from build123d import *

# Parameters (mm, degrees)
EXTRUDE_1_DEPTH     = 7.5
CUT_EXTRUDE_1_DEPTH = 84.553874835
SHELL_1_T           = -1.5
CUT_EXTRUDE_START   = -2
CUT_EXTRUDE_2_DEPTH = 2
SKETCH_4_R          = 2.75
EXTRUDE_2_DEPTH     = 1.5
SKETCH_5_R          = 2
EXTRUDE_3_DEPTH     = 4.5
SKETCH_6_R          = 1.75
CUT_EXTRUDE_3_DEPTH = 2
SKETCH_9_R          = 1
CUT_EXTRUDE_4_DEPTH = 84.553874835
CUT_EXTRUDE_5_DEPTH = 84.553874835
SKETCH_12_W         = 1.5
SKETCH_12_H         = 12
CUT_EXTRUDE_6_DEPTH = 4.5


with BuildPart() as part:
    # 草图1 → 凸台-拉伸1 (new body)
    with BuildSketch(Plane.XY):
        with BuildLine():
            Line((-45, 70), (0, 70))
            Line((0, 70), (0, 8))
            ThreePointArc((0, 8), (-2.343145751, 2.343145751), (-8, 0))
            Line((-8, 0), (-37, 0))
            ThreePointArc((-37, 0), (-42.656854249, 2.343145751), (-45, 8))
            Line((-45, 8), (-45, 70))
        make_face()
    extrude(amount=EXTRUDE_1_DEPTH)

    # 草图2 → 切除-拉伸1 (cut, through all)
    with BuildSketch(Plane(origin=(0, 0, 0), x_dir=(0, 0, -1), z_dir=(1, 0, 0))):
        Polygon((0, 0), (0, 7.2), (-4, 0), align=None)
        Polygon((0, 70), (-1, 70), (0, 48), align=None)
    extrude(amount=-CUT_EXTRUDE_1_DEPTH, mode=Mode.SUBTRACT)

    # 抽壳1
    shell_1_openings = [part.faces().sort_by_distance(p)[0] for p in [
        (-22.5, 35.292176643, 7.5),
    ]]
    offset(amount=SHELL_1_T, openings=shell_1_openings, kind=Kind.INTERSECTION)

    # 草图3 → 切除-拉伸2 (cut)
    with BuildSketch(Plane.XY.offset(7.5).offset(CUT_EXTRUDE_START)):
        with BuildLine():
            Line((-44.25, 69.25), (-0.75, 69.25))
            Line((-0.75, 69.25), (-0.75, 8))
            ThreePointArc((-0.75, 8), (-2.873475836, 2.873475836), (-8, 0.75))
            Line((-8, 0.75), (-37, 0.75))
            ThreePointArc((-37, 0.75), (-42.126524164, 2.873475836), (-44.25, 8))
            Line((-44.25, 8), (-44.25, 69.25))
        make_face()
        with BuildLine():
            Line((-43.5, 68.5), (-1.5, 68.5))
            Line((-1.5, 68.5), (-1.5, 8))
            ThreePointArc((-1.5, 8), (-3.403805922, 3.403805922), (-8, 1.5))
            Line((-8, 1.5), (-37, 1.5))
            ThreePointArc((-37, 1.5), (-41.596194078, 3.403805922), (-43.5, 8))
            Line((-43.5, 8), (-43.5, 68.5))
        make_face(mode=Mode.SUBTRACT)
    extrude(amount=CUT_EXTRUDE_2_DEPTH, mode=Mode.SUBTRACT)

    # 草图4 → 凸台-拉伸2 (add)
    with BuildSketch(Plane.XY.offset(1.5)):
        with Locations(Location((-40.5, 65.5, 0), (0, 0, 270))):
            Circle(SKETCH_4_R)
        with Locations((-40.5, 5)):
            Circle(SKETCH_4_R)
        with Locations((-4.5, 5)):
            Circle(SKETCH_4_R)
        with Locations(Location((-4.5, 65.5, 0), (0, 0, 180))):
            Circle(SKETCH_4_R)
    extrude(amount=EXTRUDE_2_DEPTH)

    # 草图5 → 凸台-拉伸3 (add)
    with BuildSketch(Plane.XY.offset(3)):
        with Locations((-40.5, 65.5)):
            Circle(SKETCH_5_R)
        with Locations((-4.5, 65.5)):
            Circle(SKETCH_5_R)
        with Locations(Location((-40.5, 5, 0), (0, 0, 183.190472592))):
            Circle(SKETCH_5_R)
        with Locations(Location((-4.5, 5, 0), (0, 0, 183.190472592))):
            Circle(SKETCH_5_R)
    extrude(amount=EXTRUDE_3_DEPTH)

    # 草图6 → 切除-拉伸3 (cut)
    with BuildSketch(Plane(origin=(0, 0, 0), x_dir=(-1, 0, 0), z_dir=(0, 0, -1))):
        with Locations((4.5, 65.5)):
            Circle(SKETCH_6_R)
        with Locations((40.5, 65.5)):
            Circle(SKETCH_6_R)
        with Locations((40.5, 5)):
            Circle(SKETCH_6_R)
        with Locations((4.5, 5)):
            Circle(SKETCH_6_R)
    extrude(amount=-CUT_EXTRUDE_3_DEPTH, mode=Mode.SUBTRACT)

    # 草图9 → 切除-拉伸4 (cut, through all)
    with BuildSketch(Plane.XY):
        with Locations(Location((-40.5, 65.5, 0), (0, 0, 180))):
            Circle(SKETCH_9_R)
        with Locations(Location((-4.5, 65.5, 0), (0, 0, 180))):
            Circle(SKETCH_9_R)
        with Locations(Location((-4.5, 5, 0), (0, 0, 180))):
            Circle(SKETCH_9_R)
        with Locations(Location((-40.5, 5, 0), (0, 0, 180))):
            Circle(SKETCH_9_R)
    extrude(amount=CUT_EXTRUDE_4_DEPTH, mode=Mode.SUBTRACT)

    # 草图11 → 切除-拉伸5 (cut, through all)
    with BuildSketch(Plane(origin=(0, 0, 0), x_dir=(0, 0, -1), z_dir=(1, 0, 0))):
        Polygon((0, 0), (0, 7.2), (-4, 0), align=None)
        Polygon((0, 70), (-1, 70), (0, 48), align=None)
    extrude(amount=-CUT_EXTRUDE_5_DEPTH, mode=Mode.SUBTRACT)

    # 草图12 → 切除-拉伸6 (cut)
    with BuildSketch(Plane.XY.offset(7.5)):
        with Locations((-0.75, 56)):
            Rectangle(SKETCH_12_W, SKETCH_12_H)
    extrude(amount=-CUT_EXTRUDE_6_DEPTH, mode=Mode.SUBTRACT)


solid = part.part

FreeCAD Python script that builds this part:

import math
import FreeCAD as App
import Part
import Sketcher
Q = App.Units.Quantity


def faces_at(feature, points):
    """Names of the faces that lie closest to the given points."""
    faces = feature.Shape.Faces
    near = lambda p: min(range(len(faces)), key=lambda i: faces[i].distToShape(Part.Vertex(*p))[0])
    return sorted({f"Face{near(p) + 1}" for p in points})

doc = App.newDocument("Part")
body = doc.addObject("PartDesign::Body", "Body")

# Sketch on XY plane
sketch1 = body.newObject("Sketcher::SketchObject", "Sketch")
sketch1.AttachmentSupport = (doc.getObject("XY_Plane"), [""])
sketch1.MapMode = "FlatFace"
sketch1.addGeometry([
    Part.LineSegment(App.Vector(0, 70, 0), App.Vector(-45, 70, 0)),  # 0
    Part.LineSegment(App.Vector(-45, 70, 0), App.Vector(-45, 8, 0)),  # 1
    Part.ArcOfCircle(Part.Circle(App.Vector(-37, 8, 0), App.Vector(0, 0, 1), 8), math.radians(-180), math.radians(-90)),  # 2
    Part.LineSegment(App.Vector(-37, 0, 0), App.Vector(-8, 0, 0)),  # 3
    Part.ArcOfCircle(Part.Circle(App.Vector(-8, 8, 0), App.Vector(0, 0, 1), 8), math.radians(-90), math.radians(0)),  # 4
    Part.LineSegment(App.Vector(0, 8, 0), App.Vector(0, 70, 0)),  # 5
], False)
sketch1.addConstraint([
    Sketcher.Constraint("Coincident", 0, 2, 1, 1),
    Sketcher.Constraint("Tangent", 1, 2, 2, 1),
    Sketcher.Constraint("Tangent", 2, 2, 3, 1),
    Sketcher.Constraint("Tangent", 3, 2, 4, 1),
    Sketcher.Constraint("Tangent", 4, 2, 5, 1),
    Sketcher.Constraint("Coincident", 5, 2, 0, 1),
    Sketcher.Constraint("Horizontal", 0),
    Sketcher.Constraint("Vertical", 1),
    Sketcher.Constraint("Horizontal", 3),
    Sketcher.Constraint("Vertical", 5),
    Sketcher.Constraint("Equal", 2, 4),
    Sketcher.Constraint("PointOnObject", 2, 2, -1),
    Sketcher.Constraint("PointOnObject", 4, 2, -2),
    Sketcher.Constraint("Radius", 2, Q("8 mm")),
    Sketcher.Constraint("DistanceX", 0, 2, 0, 1, Q("45 mm")),
    Sketcher.Constraint("DistanceY", 1, 2, 1, 1, Q("62 mm")),
])
pad1 = body.newObject("PartDesign::Pad", "Pad")
pad1.Profile = sketch1
pad1.Length = 7.5

# Sketch on YZ plane
sketch2 = body.newObject("Sketcher::SketchObject", "Sketch001")
sketch2.AttachmentSupport = (doc.getObject("YZ_Plane"), [""])
sketch2.MapMode = "FlatFace"
sketch2.addGeometry([
    Part.LineSegment(App.Vector(0, 0, 0), App.Vector(7.2, 0, 0)),  # 0
    Part.LineSegment(App.Vector(7.2, 0, 0), App.Vector(0, 4, 0)),  # 1
    Part.LineSegment(App.Vector(0, 4, 0), App.Vector(0, 0, 0)),  # 2
    Part.LineSegment(App.Vector(70, 0, 0), App.Vector(70, 1, 0)),  # 3
    Part.LineSegment(App.Vector(70, 1, 0), App.Vector(48, 0, 0)),  # 4
    Part.LineSegment(App.Vector(48, 0, 0), App.Vector(70, 0, 0)),  # 5
], False)
sketch2.addConstraint([
    Sketcher.Constraint("Coincident", 0, 2, 1, 1),
    Sketcher.Constraint("Coincident", 1, 2, 2, 1),
    Sketcher.Constraint("Coincident", 2, 2, 0, 1),
    Sketcher.Constraint("Coincident", 3, 2, 4, 1),
    Sketcher.Constraint("Coincident", 4, 2, 5, 1),
    Sketcher.Constraint("Coincident", 5, 2, 3, 1),
    Sketcher.Constraint("Horizontal", 0),
    Sketcher.Constraint("Vertical", 2),
    Sketcher.Constraint("Vertical", 3),
    Sketcher.Constraint("Horizontal", 5),
    Sketcher.Constraint("Coincident", 2, 2, -1, 1),
    Sketcher.Constraint("PointOnObject", 4, 2, -1),
    Sketcher.Constraint("DistanceX", 5, 1, 5, 2, Q("22 mm")),
    Sketcher.Constraint("DistanceY", 2, 2, 2, 1, Q("4 mm")),
    Sketcher.Constraint("DistanceY", 3, 1, 3, 2, Q("1 mm")),
    Sketcher.Constraint("DistanceX", 0, 1, 0, 2, Q("7.2 mm")),
    Sketcher.Constraint("DistanceX", -1, 1, 3, 2, Q("70 mm")),
])
pocket1 = body.newObject("PartDesign::Pocket", "Pocket")
pocket1.Profile = sketch2
pocket1.Type = "ThroughAll"
doc.recompute()

thickness = body.newObject("PartDesign::Thickness", "Thickness")
thickness.Base = (pocket1, faces_at(pocket1, [(-22.5, 35, 7.5)]))
thickness.Value = 1.5
thickness.Reversed = True
thickness.Join = "Intersection"

# Sketch on XY plane
sketch3 = body.newObject("Sketcher::SketchObject", "Sketch002")
sketch3.AttachmentSupport = (doc.getObject("XY_Plane"), [""])
sketch3.MapMode = "FlatFace"
sketch3.AttachmentOffset = App.Placement(App.Vector(0, 0, 5.5), App.Rotation())
sketch3.addGeometry([
    Part.LineSegment(App.Vector(-1, 69, 0), App.Vector(-44, 69, 0)),  # 0
    Part.LineSegment(App.Vector(-44, 69, 0), App.Vector(-44, 8, 0)),  # 1
    Part.ArcOfCircle(Part.Circle(App.Vector(-37, 8, 0), App.Vector(0, 0, 1), 7), math.radians(180), math.radians(270)),  # 2
    Part.LineSegment(App.Vector(-37, 1, 0), App.Vector(-8, 1, 0)),  # 3
    Part.ArcOfCircle(Part.Circle(App.Vector(-8, 8, 0), App.Vector(0, 0, 1), 7), math.radians(-90), math.radians(0)),  # 4
    Part.LineSegment(App.Vector(-1, 8, 0), App.Vector(-1, 69, 0)),  # 5
    Part.LineSegment(App.Vector(-44, 68, 0), App.Vector(-2, 68, 0)),  # 6
    Part.LineSegment(App.Vector(-2, 68, 0), App.Vector(-2, 8, 0)),  # 7
    Part.ArcOfCircle(Part.Circle(App.Vector(-8, 8, 0), App.Vector(0, 0, 1), 6), math.radians(-90), math.radians(0)),  # 8
    Part.LineSegment(App.Vector(-8, 2, 0), App.Vector(-37, 2, 0)),  # 9
    Part.ArcOfCircle(Part.Circle(App.Vector(-37, 8, 0), App.Vector(0, 0, 1), 6), math.radians(180), math.radians(270)),  # 10
    Part.LineSegment(App.Vector(-44, 8, 0), App.Vector(-44, 68, 0)),  # 11
], False)
sketch3.addConstraint([
    Sketcher.Constraint("Coincident", 0, 2, 1, 1),
    Sketcher.Constraint("Tangent", 1, 2, 2, 1),
    Sketcher.Constraint("Tangent", 2, 2, 3, 1),
    Sketcher.Constraint("Tangent", 3, 2, 4, 1),
    Sketcher.Constraint("Tangent", 4, 2, 5, 1),
    Sketcher.Constraint("Coincident", 5, 2, 0, 1),
    Sketcher.Constraint("Coincident", 6, 2, 7, 1),
    Sketcher.Constraint("Tangent", 7, 2, 8, 2),
    Sketcher.Constraint("Tangent", 8, 1, 9, 1),
    Sketcher.Constraint("Tangent", 9, 2, 10, 2),
    Sketcher.Constraint("Tangent", 10, 1, 11, 1),
    Sketcher.Constraint("Coincident", 11, 2, 6, 1),
    Sketcher.Constraint("Horizontal", 0),
    Sketcher.Constraint("Vertical", 1),
    Sketcher.Constraint("Horizontal", 3),
    Sketcher.Constraint("Vertical", 5),
    Sketcher.Constraint("Horizontal", 6),
    Sketcher.Constraint("Vertical", 7),
    Sketcher.Constraint("Horizontal", 9),
    Sketcher.Constraint("Vertical", 11),
    Sketcher.Constraint("Coincident", 8, 3, 4, 3),
    Sketcher.Constraint("Coincident", 10, 3, 2, 3),
    Sketcher.Constraint("Equal", 2, 4),
    Sketcher.Constraint("Radius", 8, Q("6.5 mm")),
    Sketcher.Constraint("DistanceX", 3, 1, 3, 2, Q("29 mm")),
    Sketcher.Constraint("Radius", 2, Q("7.25 mm")),
    Sketcher.Constraint("DistanceY", 7, 2, 7, 1, Q("60.5 mm")),
    Sketcher.Constraint("DistanceX", 2, 3, -1, 1, Q("37 mm")),
    Sketcher.Constraint("DistanceY", -1, 1, 2, 3, Q("8 mm")),
    Sketcher.Constraint("DistanceY", 1, 2, 1, 1, Q("61.25 mm")),
])
pocket2 = body.newObject("PartDesign::Pocket", "Pocket001")
pocket2.Profile = sketch3
pocket2.Length = 2
pocket2.Reversed = True

# Sketch on XY plane
sketch4 = body.newObject("Sketcher::SketchObject", "Sketch003")
sketch4.AttachmentSupport = (doc.getObject("XY_Plane"), [""])
sketch4.MapMode = "FlatFace"
sketch4.AttachmentOffset = App.Placement(App.Vector(0, 0, 1.5), App.Rotation())
sketch4.addGeometry([
    Part.Circle(App.Vector(-40.5, 65.5, 0), App.Vector(0, 0, 1), 2.8),
    Part.Circle(App.Vector(-40.5, 5, 0), App.Vector(0, 0, 1), 2.8),
    Part.Circle(App.Vector(-4.5, 5, 0), App.Vector(0, 0, 1), 2.8),
    Part.Circle(App.Vector(-4.5, 65.5, 0), App.Vector(0, 0, 1), 2.8),
], False)
sketch4.addConstraint([
    Sketcher.Constraint("Equal", 0, 1),
    Sketcher.Constraint("Equal", 1, 2),
    Sketcher.Constraint("Equal", 2, 3),
    Sketcher.Constraint("Horizontal", 1, 3, 2, 3),
    Sketcher.Constraint("Horizontal", 0, 3, 3, 3),
    Sketcher.Constraint("Vertical", 0, 3, 1, 3),
    Sketcher.Constraint("Vertical", 2, 3, 3, 3),
    Sketcher.Constraint("Diameter", 0, Q("5.5 mm")),
    Sketcher.Constraint("DistanceY", -1, 1, 1, 3, Q("5 mm")),
    Sketcher.Constraint("DistanceX", 1, 3, 2, 3, Q("36 mm")),
    Sketcher.Constraint("DistanceX", 0, 3, -1, 1, Q("40.5 mm")),
    Sketcher.Constraint("DistanceY", -1, 1, 0, 3, Q("65.5 mm")),
])
pad2 = body.newObject("PartDesign::Pad", "Pad001")
pad2.Profile = sketch4
pad2.Length = 1.5

# Sketch on XY plane
sketch5 = body.newObject("Sketcher::SketchObject", "Sketch004")
sketch5.AttachmentSupport = (doc.getObject("XY_Plane"), [""])
sketch5.MapMode = "FlatFace"
sketch5.AttachmentOffset = App.Placement(App.Vector(0, 0, 3), App.Rotation())
sketch5.addGeometry([
    Part.Circle(App.Vector(-40.5, 65.5, 0), App.Vector(0, 0, 1), 2),
    Part.Circle(App.Vector(-4.5, 65.5, 0), App.Vector(0, 0, 1), 2),
    Part.Circle(App.Vector(-40.5, 5, 0), App.Vector(0, 0, 1), 2),
    Part.Circle(App.Vector(-4.5, 5, 0), App.Vector(0, 0, 1), 2),
], False)
sketch5.addConstraint([
    Sketcher.Constraint("Equal", 0, 1),
    Sketcher.Constraint("Equal", 1, 2),
    Sketcher.Constraint("Equal", 2, 3),
    Sketcher.Constraint("Horizontal", 0, 3, 1, 3),
    Sketcher.Constraint("Horizontal", 2, 3, 3, 3),
    Sketcher.Constraint("Vertical", 0, 3, 2, 3),
    Sketcher.Constraint("Vertical", 1, 3, 3, 3),
    Sketcher.Constraint("Diameter", 0, Q("4 mm")),
    Sketcher.Constraint("DistanceY", -1, 1, 2, 3, Q("5 mm")),
    Sketcher.Constraint("DistanceX", 0, 3, 1, 3, Q("36 mm")),
    Sketcher.Constraint("DistanceX", 0, 3, -1, 1, Q("40.5 mm")),
    Sketcher.Constraint("DistanceY", -1, 1, 0, 3, Q("65.5 mm")),
])
pad3 = body.newObject("PartDesign::Pad", "Pad002")
pad3.Profile = sketch5
pad3.Length = 4.5

# Sketch on XY plane
sketch6 = body.newObject("Sketcher::SketchObject", "Sketch005")
sketch6.AttachmentSupport = (doc.getObject("XY_Plane"), [""])
sketch6.MapMode = "FlatFace"
sketch6.addGeometry([
    Part.Circle(App.Vector(-4.5, 65.5, 0), App.Vector(0, 0, 1), 1.8),
    Part.Circle(App.Vector(-40.5, 65.5, 0), App.Vector(0, 0, 1), 1.8),
    Part.Circle(App.Vector(-40.5, 5, 0), App.Vector(0, 0, 1), 1.8),
    Part.Circle(App.Vector(-4.5, 5, 0), App.Vector(0, 0, 1), 1.8),
], False)
sketch6.addConstraint([
    Sketcher.Constraint("Equal", 0, 1),
    Sketcher.Constraint("Equal", 1, 2),
    Sketcher.Constraint("Equal", 2, 3),
    Sketcher.Constraint("Horizontal", 0, 3, 1, 3),
    Sketcher.Constraint("Horizontal", 2, 3, 3, 3),
    Sketcher.Constraint("Vertical", 1, 3, 2, 3),
    Sketcher.Constraint("Vertical", 0, 3, 3, 3),
    Sketcher.Constraint("Diameter", 0, Q("3.5 mm")),
    Sketcher.Constraint("DistanceY", -1, 1, 2, 3, Q("5 mm")),
    Sketcher.Constraint("DistanceX", 1, 3, 0, 3, Q("36 mm")),
    Sketcher.Constraint("DistanceX", 0, 3, -1, 1, Q("4.5 mm")),
    Sketcher.Constraint("DistanceY", -1, 1, 0, 3, Q("65.5 mm")),
])
pocket3 = body.newObject("PartDesign::Pocket", "Pocket002")
pocket3.Profile = sketch6
pocket3.Length = 2
pocket3.Reversed = True

# Sketch on XY plane
sketch7 = body.newObject("Sketcher::SketchObject", "Sketch006")
sketch7.AttachmentSupport = (doc.getObject("XY_Plane"), [""])
sketch7.MapMode = "FlatFace"
sketch7.addGeometry([
    Part.Circle(App.Vector(-40.5, 65.5, 0), App.Vector(0, 0, 1), 1),
    Part.Circle(App.Vector(-4.5, 65.5, 0), App.Vector(0, 0, 1), 1),
    Part.Circle(App.Vector(-4.5, 5, 0), App.Vector(0, 0, 1), 1),
    Part.Circle(App.Vector(-40.5, 5, 0), App.Vector(0, 0, 1), 1),
], False)
sketch7.addConstraint([
    Sketcher.Constraint("Equal", 0, 1),
    Sketcher.Constraint("Equal", 1, 2),
    Sketcher.Constraint("Equal", 2, 3),
    Sketcher.Constraint("Horizontal", 0, 3, 1, 3),
    Sketcher.Constraint("Horizontal", 2, 3, 3, 3),
    Sketcher.Constraint("Vertical", 1, 3, 2, 3),
    Sketcher.Constraint("Vertical", 0, 3, 3, 3),
    Sketcher.Constraint("Diameter", 0, Q("2 mm")),
    Sketcher.Constraint("DistanceY", -1, 1, 2, 3, Q("5 mm")),
    Sketcher.Constraint("DistanceX", 0, 3, 1, 3, Q("36 mm")),
    Sketcher.Constraint("DistanceX", 0, 3, -1, 1, Q("40.5 mm")),
    Sketcher.Constraint("DistanceY", -1, 1, 0, 3, Q("65.5 mm")),
])
pocket4 = body.newObject("PartDesign::Pocket", "Pocket003")
pocket4.Profile = sketch7
pocket4.Type = "ThroughAll"
pocket4.Reversed = True

# Sketch on YZ plane
sketch8 = body.newObject("Sketcher::SketchObject", "Sketch007")
sketch8.AttachmentSupport = (doc.getObject("YZ_Plane"), [""])
sketch8.MapMode = "FlatFace"
sketch8.addGeometry([
    Part.LineSegment(App.Vector(0, 0, 0), App.Vector(7.2, 0, 0)),  # 0
    Part.LineSegment(App.Vector(7.2, 0, 0), App.Vector(0, 4, 0)),  # 1
    Part.LineSegment(App.Vector(0, 4, 0), App.Vector(0, 0, 0)),  # 2
    Part.LineSegment(App.Vector(70, 0, 0), App.Vector(70, 1, 0)),  # 3
    Part.LineSegment(App.Vector(70, 1, 0), App.Vector(48, 0, 0)),  # 4
    Part.LineSegment(App.Vector(48, 0, 0), App.Vector(70, 0, 0)),  # 5
], False)
sketch8.addConstraint([
    Sketcher.Constraint("Coincident", 0, 2, 1, 1),
    Sketcher.Constraint("Coincident", 1, 2, 2, 1),
    Sketcher.Constraint("Coincident", 2, 2, 0, 1),
    Sketcher.Constraint("Coincident", 3, 2, 4, 1),
    Sketcher.Constraint("Coincident", 4, 2, 5, 1),
    Sketcher.Constraint("Coincident", 5, 2, 3, 1),
    Sketcher.Constraint("Horizontal", 0),
    Sketcher.Constraint("Vertical", 2),
    Sketcher.Constraint("Vertical", 3),
    Sketcher.Constraint("Horizontal", 5),
    Sketcher.Constraint("Coincident", 2, 2, -1, 1),
    Sketcher.Constraint("PointOnObject", 4, 2, -1),
    Sketcher.Constraint("DistanceX", 5, 1, 5, 2, Q("22 mm")),
    Sketcher.Constraint("DistanceY", 2, 2, 2, 1, Q("4 mm")),
    Sketcher.Constraint("DistanceY", 3, 1, 3, 2, Q("1 mm")),
    Sketcher.Constraint("DistanceX", 0, 1, 0, 2, Q("7.2 mm")),
    Sketcher.Constraint("DistanceX", -1, 1, 3, 2, Q("70 mm")),
])
pocket5 = body.newObject("PartDesign::Pocket", "Pocket004")
pocket5.Profile = sketch8
pocket5.Type = "ThroughAll"

# Sketch on XY plane
sketch9 = body.newObject("Sketcher::SketchObject", "Sketch008")
sketch9.AttachmentSupport = (doc.getObject("XY_Plane"), [""])
sketch9.MapMode = "FlatFace"
sketch9.AttachmentOffset = App.Placement(App.Vector(0, 0, 7.5), App.Rotation())
sketch9.addGeometry([
    Part.LineSegment(App.Vector(-1.5, 62, 0), App.Vector(-1.5, 50, 0)),
    Part.LineSegment(App.Vector(-1.5, 50, 0), App.Vector(0, 50, 0)),
    Part.LineSegment(App.Vector(0, 50, 0), App.Vector(0, 62, 0)),
    Part.LineSegment(App.Vector(0, 62, 0), App.Vector(-1.5, 62, 0)),
], False)
sketch9.addConstraint([
    Sketcher.Constraint("Coincident", 0, 2, 1, 1),
    Sketcher.Constraint("Coincident", 1, 2, 2, 1),
    Sketcher.Constraint("Coincident", 2, 2, 3, 1),
    Sketcher.Constraint("Coincident", 3, 2, 0, 1),
    Sketcher.Constraint("Vertical", 0),
    Sketcher.Constraint("Horizontal", 1),
    Sketcher.Constraint("Vertical", 2),
    Sketcher.Constraint("Horizontal", 3),
    Sketcher.Constraint("PointOnObject", 1, 2, -2),
    Sketcher.Constraint("DistanceY", 0, 2, 0, 1, Q("12 mm")),
    Sketcher.Constraint("DistanceX", 1, 1, 1, 2, Q("1.5 mm")),
    Sketcher.Constraint("DistanceY", -1, 1, 0, 2, Q("50 mm")),
])
pocket6 = body.newObject("PartDesign::Pocket", "Pocket005")
pocket6.Profile = sketch9
pocket6.Length = 4.5

doc.recompute()
